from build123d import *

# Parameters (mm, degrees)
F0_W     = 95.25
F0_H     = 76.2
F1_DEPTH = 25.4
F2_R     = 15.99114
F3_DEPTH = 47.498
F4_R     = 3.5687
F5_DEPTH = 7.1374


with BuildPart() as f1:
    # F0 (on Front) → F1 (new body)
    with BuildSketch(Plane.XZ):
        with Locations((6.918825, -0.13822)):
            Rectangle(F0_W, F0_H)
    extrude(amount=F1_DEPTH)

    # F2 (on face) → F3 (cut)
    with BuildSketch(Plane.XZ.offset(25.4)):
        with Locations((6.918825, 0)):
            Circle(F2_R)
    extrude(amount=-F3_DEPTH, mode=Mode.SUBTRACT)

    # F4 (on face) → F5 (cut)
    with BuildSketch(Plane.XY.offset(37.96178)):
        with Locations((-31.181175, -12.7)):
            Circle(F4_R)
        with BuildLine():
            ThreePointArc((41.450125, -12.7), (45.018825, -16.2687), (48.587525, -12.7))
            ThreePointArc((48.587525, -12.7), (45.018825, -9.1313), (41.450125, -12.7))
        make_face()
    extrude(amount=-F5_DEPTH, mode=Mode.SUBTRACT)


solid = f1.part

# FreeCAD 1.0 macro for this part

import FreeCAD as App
import Part
import Sketcher

V = App.Vector
Q = App.Units.Quantity


def add_polygon(sketch, points):
    """Adds a closed chain of lines whose ends are joined by coincident constraints."""
    first, n = sketch.GeometryCount, len(points)
    for a, b in zip(points, points[1:] + points[:1]):
        sketch.addGeometry(Part.LineSegment(App.Vector(*a, 0), App.Vector(*b, 0)), False)
    for i in range(n):
        sketch.addConstraint(Sketcher.Constraint("Coincident", first + i, 2, first + (i + 1) % n, 1))

doc = App.newDocument("Part")
body = doc.addObject("PartDesign::Body", "Body")

sketch1 = body.newObject("Sketcher::SketchObject", "Sketch")
sketch1.AttachmentSupport = (doc.getObject("XZ_Plane"), [""])
sketch1.MapMode = "FlatFace"
add_polygon(sketch1, [(-41, 38), (-41, -38), (55, -38), (55, 38)])
sketch1.addConstraint(Sketcher.Constraint("Vertical", 0))
sketch1.addConstraint(Sketcher.Constraint("Horizontal", 1))
sketch1.addConstraint(Sketcher.Constraint("Vertical", 2))
sketch1.addConstraint(Sketcher.Constraint("Horizontal", 3))
sketch1.addConstraint(Sketcher.Constraint("DistanceY", 0, 2, 0, 1, Q("3 in")))
sketch1.addConstraint(Sketcher.Constraint("DistanceX", 1, 1, 1, 2, Q("3.75 in")))
sketch1.addConstraint(Sketcher.Constraint("DistanceY", 0, 2, -1, 1, 38.23822))
sketch1.addConstraint(Sketcher.Constraint("DistanceX", 0, 2, -1, 1, 40.706175))
pad1 = body.newObject("PartDesign::Pad", "Pad")
pad1.Profile = sketch1
pad1.Length = Q("1 in")

sketch2 = body.newObject("Sketcher::SketchObject", "Sketch001")
sketch2.AttachmentSupport = (doc.getObject("XZ_Plane"), [""])
sketch2.MapMode = "FlatFace"
sketch2.AttachmentOffset = App.Placement(V(0, 0, 1 * 25.4), App.Rotation())
sketch2.addGeometry(Part.Circle(V(7, 0, 0), V(0, 0, 1), 16), False)
sketch2.addConstraint(Sketcher.Constraint("PointOnObject", 0, 3, -1))
sketch2.addConstraint(Sketcher.Constraint("Diameter", 0, 31.98228))
sketch2.addConstraint(Sketcher.Constraint("DistanceX", -1, 1, 0, 3, 6.918825))
pocket1 = body.newObject("PartDesign::Pocket", "Pocket")
pocket1.Profile = sketch2
pocket1.Length = Q("1.87 in")

sketch3 = body.newObject("Sketcher::SketchObject", "Sketch002")
sketch3.AttachmentSupport = (doc.getObject("XY_Plane"), [""])
sketch3.MapMode = "FlatFace"
sketch3.AttachmentOffset = App.Placement(V(0, 0, 37.96178), App.Rotation())
sketch3.addGeometry(Part.Circle(V(-31.2, -12.7, 0), V(0, 0, 1), 3.6), False)
sketch3.addGeometry(Part.Circle(V(45, -12.7, 0), V(0, 0, 1), 3.6), False)
sketch3.addConstraint(Sketcher.Constraint("Equal", 0, 1))
sketch3.addConstraint(Sketcher.Constraint("Horizontal", 0, 3, 1, 3))
sketch3.addConstraint(Sketcher.Constraint("Diameter", 0, Q("0.281 in")))
sketch3.addConstraint(Sketcher.Constraint("DistanceX", 0, 3, 1, 3, Q("3 in")))
sketch3.addConstraint(Sketcher.Constraint("DistanceY", 0, 3, -1, 1, Q("0.5 in")))
sketch3.addConstraint(Sketcher.Constraint("DistanceX", 0, 3, -1, 1, 31.181175))
pocket2 = body.newObject("PartDesign::Pocket", "Pocket001")
pocket2.Profile = sketch3
pocket2.Length = Q("0.281 in")

doc.recompute()
